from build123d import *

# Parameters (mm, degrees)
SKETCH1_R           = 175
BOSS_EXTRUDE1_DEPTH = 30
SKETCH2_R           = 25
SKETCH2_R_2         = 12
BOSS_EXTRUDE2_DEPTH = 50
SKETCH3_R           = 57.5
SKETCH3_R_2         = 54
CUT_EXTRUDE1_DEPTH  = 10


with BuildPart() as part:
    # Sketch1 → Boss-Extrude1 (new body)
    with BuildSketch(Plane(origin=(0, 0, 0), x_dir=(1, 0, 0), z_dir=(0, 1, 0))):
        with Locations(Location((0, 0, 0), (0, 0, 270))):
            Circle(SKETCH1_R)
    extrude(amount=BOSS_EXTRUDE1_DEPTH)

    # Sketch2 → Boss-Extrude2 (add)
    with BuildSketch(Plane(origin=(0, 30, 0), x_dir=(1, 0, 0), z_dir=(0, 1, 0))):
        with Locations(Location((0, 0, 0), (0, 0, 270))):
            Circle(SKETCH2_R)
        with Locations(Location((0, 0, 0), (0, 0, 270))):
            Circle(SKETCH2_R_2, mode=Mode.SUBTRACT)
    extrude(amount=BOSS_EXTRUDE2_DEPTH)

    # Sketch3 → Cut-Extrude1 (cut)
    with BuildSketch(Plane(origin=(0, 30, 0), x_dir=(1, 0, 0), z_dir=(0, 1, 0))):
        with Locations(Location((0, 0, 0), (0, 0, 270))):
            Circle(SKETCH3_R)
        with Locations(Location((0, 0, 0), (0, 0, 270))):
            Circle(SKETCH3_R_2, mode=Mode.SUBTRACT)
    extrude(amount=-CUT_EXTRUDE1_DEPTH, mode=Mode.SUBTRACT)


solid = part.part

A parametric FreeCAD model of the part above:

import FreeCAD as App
import Part
import Sketcher
from FreeCAD import Vector
Q = App.Units.Quantity

doc = App.newDocument("Part")
body = doc.addObject("PartDesign::Body", "Body")

# Sketch on XZ plane
sketch1 = body.newObject("Sketcher::SketchObject", "Sketch")
sketch1.AttachmentSupport = (doc.getObject("XZ_Plane"), [""])
sketch1.MapMode = "FlatFace"
sketch1.addGeometry(Part.Circle(Vector(0, 0, 0), Vector(0, 0, 1), 175), False)
sketch1.addConstraint([
    Sketcher.Constraint("Coincident", 0, 3, -1, 1),
    Sketcher.Constraint("Diameter", 0, Q("350 mm")),
])
pad1 = body.newObject("PartDesign::Pad", "Pad")
pad1.Profile = sketch1
pad1.Length = 30
pad1.Reversed = True

# Sketch on XZ plane
sketch2 = body.newObject("Sketcher::SketchObject", "Sketch001")
sketch2.AttachmentSupport = (doc.getObject("XZ_Plane"), [""])
sketch2.MapMode = "FlatFace"
sketch2.AttachmentOffset = App.Placement(Vector(0, 0, -30), App.Rotation())
sketch2.addGeometry([
    Part.Circle(Vector(0, 0, 0), Vector(0, 0, 1), 25),
    Part.Circle(Vector(0, 0, 0), Vector(0, 0, 1), 12),
], False)
sketch2.addConstraint([
    Sketcher.Constraint("Coincident", 0, 3, -1, 1),
    Sketcher.Constraint("Coincident", 1, 3, -1, 1),
    Sketcher.Constraint("Diameter", 0, Q("50 mm")),
    Sketcher.Constraint("Diameter", 1, Q("24 mm")),
])
pad2 = body.newObject("PartDesign::Pad", "Pad001")
pad2.Profile = sketch2
pad2.Length = 50
pad2.Reversed = True

# Sketch on XZ plane
sketch3 = body.newObject("Sketcher::SketchObject", "Sketch002")
sketch3.AttachmentSupport = (doc.getObject("XZ_Plane"), [""])
sketch3.MapMode = "FlatFace"
sketch3.AttachmentOffset = App.Placement(Vector(0, 0, -30), App.Rotation())
sketch3.addGeometry([
    Part.Circle(Vector(0, 0, 0), Vector(0, 0, 1), 57.5),
    Part.Circle(Vector(0, 0, 0), Vector(0, 0, 1), 54),
], False)
sketch3.addConstraint([
    Sketcher.Constraint("Coincident", 0, 3, -1, 1),
    Sketcher.Constraint("Coincident", 1, 3, -1, 1),
    Sketcher.Constraint("Diameter", 0, Q("115 mm")),
    Sketcher.Constraint("Diameter", 1, Q("108 mm")),
])
pocket1 = body.newObject("PartDesign::Pocket", "Pocket")
pocket1.Profile = sketch3
pocket1.Length = 10
pocket1.Reversed = True

doc.recompute()
